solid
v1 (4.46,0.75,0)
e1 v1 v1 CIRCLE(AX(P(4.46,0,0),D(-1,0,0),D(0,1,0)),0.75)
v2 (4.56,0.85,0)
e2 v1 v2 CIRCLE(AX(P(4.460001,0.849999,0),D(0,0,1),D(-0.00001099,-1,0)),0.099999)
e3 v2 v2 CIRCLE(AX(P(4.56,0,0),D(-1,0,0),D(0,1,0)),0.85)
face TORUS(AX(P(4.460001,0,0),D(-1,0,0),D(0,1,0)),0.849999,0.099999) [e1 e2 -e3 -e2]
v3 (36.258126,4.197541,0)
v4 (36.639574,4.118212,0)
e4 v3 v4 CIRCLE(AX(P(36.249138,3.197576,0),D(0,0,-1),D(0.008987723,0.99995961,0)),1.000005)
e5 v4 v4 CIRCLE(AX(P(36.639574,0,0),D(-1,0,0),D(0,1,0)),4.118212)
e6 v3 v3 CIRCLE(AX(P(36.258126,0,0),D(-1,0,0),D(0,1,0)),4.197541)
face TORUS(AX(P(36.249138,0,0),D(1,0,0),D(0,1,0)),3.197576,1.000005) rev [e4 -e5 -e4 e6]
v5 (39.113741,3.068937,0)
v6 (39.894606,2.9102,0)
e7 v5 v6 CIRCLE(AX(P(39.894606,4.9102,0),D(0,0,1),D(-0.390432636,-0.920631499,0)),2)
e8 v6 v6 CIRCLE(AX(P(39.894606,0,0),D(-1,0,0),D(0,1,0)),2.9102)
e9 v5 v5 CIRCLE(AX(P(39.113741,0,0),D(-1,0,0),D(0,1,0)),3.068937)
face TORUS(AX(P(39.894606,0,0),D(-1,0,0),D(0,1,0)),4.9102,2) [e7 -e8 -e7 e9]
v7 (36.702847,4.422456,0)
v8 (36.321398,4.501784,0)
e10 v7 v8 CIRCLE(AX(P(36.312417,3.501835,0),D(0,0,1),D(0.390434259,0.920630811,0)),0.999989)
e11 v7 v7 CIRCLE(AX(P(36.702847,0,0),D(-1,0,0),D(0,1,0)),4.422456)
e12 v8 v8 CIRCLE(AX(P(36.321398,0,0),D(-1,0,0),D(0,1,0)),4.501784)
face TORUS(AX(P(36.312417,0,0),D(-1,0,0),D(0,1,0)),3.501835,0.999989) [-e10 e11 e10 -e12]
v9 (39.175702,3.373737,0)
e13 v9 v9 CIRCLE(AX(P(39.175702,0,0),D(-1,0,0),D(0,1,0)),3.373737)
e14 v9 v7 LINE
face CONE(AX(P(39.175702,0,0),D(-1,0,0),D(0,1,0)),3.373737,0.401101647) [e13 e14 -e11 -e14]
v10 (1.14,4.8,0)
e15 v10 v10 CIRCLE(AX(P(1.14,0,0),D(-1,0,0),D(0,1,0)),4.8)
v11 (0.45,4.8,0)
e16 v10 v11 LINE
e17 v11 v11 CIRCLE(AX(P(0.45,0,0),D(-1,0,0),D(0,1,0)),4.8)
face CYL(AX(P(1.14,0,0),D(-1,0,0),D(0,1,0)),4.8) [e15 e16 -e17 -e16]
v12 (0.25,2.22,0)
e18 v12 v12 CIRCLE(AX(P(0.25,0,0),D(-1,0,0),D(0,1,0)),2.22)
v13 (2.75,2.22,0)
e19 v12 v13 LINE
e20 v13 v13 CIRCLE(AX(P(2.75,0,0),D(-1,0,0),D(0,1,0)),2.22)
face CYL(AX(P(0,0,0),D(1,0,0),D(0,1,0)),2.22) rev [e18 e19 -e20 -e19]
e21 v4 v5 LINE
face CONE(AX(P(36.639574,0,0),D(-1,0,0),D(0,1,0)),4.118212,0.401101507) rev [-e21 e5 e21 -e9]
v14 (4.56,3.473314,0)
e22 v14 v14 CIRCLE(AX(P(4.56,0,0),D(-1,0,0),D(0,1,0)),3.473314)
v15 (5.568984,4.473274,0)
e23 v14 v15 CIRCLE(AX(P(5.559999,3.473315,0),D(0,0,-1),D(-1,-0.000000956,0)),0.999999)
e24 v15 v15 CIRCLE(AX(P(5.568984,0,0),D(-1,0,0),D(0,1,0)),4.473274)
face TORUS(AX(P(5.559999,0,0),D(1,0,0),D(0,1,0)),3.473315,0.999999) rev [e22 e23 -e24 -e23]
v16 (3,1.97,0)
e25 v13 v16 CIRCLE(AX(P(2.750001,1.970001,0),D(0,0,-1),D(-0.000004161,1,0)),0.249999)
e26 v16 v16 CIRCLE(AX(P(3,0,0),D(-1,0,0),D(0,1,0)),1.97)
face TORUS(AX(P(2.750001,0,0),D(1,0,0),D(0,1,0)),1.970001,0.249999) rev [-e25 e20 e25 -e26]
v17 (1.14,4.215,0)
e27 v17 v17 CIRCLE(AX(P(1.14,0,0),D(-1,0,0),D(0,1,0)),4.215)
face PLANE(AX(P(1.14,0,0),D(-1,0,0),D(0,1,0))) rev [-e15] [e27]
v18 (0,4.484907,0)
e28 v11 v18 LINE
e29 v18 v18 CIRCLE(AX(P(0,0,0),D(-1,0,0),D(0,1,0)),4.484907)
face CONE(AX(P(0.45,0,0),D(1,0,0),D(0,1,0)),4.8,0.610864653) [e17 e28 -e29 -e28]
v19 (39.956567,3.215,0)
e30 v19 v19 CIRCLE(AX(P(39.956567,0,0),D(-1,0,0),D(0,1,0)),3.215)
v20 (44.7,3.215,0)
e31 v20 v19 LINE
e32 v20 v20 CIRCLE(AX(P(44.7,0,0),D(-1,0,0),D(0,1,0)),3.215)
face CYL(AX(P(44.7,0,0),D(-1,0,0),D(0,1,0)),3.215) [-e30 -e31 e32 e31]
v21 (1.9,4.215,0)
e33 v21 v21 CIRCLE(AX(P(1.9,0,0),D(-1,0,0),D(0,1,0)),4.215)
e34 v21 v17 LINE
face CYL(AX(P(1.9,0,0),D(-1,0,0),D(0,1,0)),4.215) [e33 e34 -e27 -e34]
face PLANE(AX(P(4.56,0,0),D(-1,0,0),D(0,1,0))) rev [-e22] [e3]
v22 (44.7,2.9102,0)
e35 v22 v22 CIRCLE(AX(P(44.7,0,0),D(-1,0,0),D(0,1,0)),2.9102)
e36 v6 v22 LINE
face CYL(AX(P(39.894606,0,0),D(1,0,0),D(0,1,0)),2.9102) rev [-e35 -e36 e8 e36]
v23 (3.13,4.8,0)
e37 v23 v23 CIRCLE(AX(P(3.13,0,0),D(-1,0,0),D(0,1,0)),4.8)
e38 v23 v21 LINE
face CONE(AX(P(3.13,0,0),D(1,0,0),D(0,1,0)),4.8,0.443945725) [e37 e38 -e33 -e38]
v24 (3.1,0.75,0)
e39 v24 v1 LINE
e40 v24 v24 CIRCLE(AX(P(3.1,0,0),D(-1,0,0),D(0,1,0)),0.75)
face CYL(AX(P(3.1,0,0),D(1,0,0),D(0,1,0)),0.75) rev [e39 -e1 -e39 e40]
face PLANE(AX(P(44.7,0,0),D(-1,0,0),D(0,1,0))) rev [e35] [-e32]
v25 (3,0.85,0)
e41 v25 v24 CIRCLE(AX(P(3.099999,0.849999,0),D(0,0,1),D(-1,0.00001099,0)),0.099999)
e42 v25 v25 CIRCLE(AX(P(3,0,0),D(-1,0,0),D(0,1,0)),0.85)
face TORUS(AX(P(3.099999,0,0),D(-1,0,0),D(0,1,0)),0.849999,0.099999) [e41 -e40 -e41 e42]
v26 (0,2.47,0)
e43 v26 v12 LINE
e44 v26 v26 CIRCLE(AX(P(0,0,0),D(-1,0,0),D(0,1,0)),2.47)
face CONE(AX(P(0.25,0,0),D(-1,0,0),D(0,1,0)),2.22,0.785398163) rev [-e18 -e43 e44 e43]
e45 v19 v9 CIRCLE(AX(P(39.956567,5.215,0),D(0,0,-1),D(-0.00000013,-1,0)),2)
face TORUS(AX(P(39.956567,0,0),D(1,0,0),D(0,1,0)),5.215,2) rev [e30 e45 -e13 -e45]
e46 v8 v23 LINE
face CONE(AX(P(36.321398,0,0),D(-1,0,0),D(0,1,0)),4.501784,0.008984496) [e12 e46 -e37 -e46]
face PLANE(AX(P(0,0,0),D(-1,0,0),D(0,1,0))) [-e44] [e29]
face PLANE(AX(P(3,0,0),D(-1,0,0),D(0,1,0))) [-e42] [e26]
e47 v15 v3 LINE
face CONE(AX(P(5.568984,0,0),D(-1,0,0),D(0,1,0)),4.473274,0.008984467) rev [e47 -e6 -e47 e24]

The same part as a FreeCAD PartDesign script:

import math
import FreeCAD as App
import Part
import Sketcher


def edges_at(feature, points):
    """Names of the edges that pass closest to the given points."""
    edges = feature.Shape.Edges
    near = lambda p: min(range(len(edges)), key=lambda i: edges[i].distToShape(Part.Vertex(*p))[0])
    return sorted({f"Edge{near(p) + 1}" for p in points})

doc = App.newDocument("Part")
body = doc.addObject("PartDesign::Body", "Body")

# Sketch on XY plane
sketch1 = body.newObject("Sketcher::SketchObject", "Sketch")
sketch1.AttachmentSupport = (doc.getObject("XY_Plane"), [""])
sketch1.MapMode = "FlatFace"
sketch1.addGeometry(Part.LineSegment(App.Vector(0, 4.48, 0), App.Vector(0, 2.22, 0)), False)
sketch1.addGeometry(Part.LineSegment(App.Vector(0, 2.22, 0), App.Vector(2.75, 2.22, 0)), False)
sketch1.addGeometry(Part.ArcOfCircle(Part.Circle(App.Vector(2.75, 1.97, 0), App.Vector(0, 0, 1), 0.25), math.radians(0), math.radians(90)), False)
sketch1.addGeometry(Part.LineSegment(App.Vector(3, 1.97, 0), App.Vector(3, 0.85, 0)), False)
sketch1.addGeometry(Part.ArcOfCircle(Part.Circle(App.Vector(3.1, 0.85, 0), App.Vector(0, 0, 1), 0.1), math.radians(180), math.radians(270)), False)
sketch1.addGeometry(Part.LineSegment(App.Vector(3.1, 0.75, 0), App.Vector(4.46, 0.75, 0)), False)
sketch1.addGeometry(Part.ArcOfCircle(Part.Circle(App.Vector(4.46, 0.85, 0), App.Vector(0, 0, 1), 0.1), math.radians(-90), math.radians(0)), False)
sketch1.addGeometry(Part.LineSegment(App.Vector(4.56, 0.85, 0), App.Vector(4.56, 3.47, 0)), False)
sketch1.addGeometry(Part.ArcOfCircle(Part.Circle(App.Vector(5.56, 3.47, 0), App.Vector(0, 0, 1), 1), math.radians(89), math.radians(180)), False)
sketch1.addGeometry(Part.LineSegment(App.Vector(5.57, 4.47, 0), App.Vector(36.26, 4.2, 0)), False)
sketch1.addGeometry(Part.ArcOfCircle(Part.Circle(App.Vector(36.25, 3.2, 0), App.Vector(0, 0, 1), 1), math.radians(67), math.radians(89)), False)
sketch1.addGeometry(Part.LineSegment(App.Vector(36.64, 4.12, 0), App.Vector(39.11, 3.07, 0)), False)
sketch1.addGeometry(Part.ArcOfCircle(Part.Circle(App.Vector(39.89, 4.91, 0), App.Vector(0, 0, 1), 2), math.radians(-113), math.radians(-90)), False)
sketch1.addGeometry(Part.LineSegment(App.Vector(39.89, 2.91, 0), App.Vector(44.7, 2.91, 0)), False)
sketch1.addGeometry(Part.LineSegment(App.Vector(44.7, 2.91, 0), App.Vector(44.7, 3.21, 0)), False)
sketch1.addGeometry(Part.LineSegment(App.Vector(44.7, 3.21, 0), App.Vector(39.96, 3.21, 0)), False)
sketch1.addGeometry(Part.ArcOfCircle(Part.Circle(App.Vector(39.96, 5.21, 0), App.Vector(0, 0, 1), 2), math.radians(-113), math.radians(-90)), False)
sketch1.addGeometry(Part.LineSegment(App.Vector(39.18, 3.37, 0), App.Vector(36.7, 4.42, 0)), False)
sketch1.addGeometry(Part.ArcOfCircle(Part.Circle(App.Vector(36.31, 3.5, 0), App.Vector(0, 0, 1), 1), math.radians(67), math.radians(89)), False)
sketch1.addGeometry(Part.LineSegment(App.Vector(36.32, 4.5, 0), App.Vector(3.13, 4.8, 0)), False)
sketch1.addGeometry(Part.LineSegment(App.Vector(3.13, 4.8, 0), App.Vector(1.9, 4.21, 0)), False)
sketch1.addGeometry(Part.LineSegment(App.Vector(1.9, 4.21, 0), App.Vector(1.14, 4.21, 0)), False)
sketch1.addGeometry(Part.LineSegment(App.Vector(1.14, 4.21, 0), App.Vector(1.14, 4.8, 0)), False)
sketch1.addGeometry(Part.LineSegment(App.Vector(1.14, 4.8, 0), App.Vector(0.45, 4.8, 0)), False)
sketch1.addGeometry(Part.LineSegment(App.Vector(0.45, 4.8, 0), App.Vector(0, 4.48, 0)), False)
sketch1.addConstraint(Sketcher.Constraint("Coincident", 0, 2, 1, 1))
sketch1.addConstraint(Sketcher.Constraint("Coincident", 1, 2, 2, 2))
sketch1.addConstraint(Sketcher.Constraint("Coincident", 2, 1, 3, 1))
sketch1.addConstraint(Sketcher.Constraint("Coincident", 3, 2, 4, 1))
sketch1.addConstraint(Sketcher.Constraint("Coincident", 4, 2, 5, 1))
sketch1.addConstraint(Sketcher.Constraint("Coincident", 5, 2, 6, 1))
sketch1.addConstraint(Sketcher.Constraint("Coincident", 6, 2, 7, 1))
sketch1.addConstraint(Sketcher.Constraint("Tangent", 7, 2, 8, 2))
sketch1.addConstraint(Sketcher.Constraint("Tangent", 8, 1, 9, 1))
sketch1.addConstraint(Sketcher.Constraint("Coincident", 9, 2, 10, 2))
sketch1.addConstraint(Sketcher.Constraint("Tangent", 10, 1, 11, 1))
sketch1.addConstraint(Sketcher.Constraint("Tangent", 11, 2, 12, 1))
sketch1.addConstraint(Sketcher.Constraint("Tangent", 12, 2, 13, 1))
sketch1.addConstraint(Sketcher.Constraint("Coincident", 13, 2, 14, 1))
sketch1.addConstraint(Sketcher.Constraint("Coincident", 14, 2, 15, 1))
sketch1.addConstraint(Sketcher.Constraint("Tangent", 15, 2, 16, 2))
sketch1.addConstraint(Sketcher.Constraint("Tangent", 16, 1, 17, 1))
sketch1.addConstraint(Sketcher.Constraint("Tangent", 17, 2, 18, 1))
sketch1.addConstraint(Sketcher.Constraint("Coincident", 18, 2, 19, 1))
sketch1.addConstraint(Sketcher.Constraint("Coincident", 19, 2, 20, 1))
sketch1.addConstraint(Sketcher.Constraint("Coincident", 20, 2, 21, 1))
sketch1.addConstraint(Sketcher.Constraint("Coincident", 21, 2, 22, 1))
sketch1.addConstraint(Sketcher.Constraint("Coincident", 22, 2, 23, 1))
sketch1.addConstraint(Sketcher.Constraint("Coincident", 23, 2, 24, 1))
sketch1.addConstraint(Sketcher.Constraint("Coincident", 24, 2, 0, 1))
sketch1.addConstraint(Sketcher.Constraint("Vertical", 0))
sketch1.addConstraint(Sketcher.Constraint("Horizontal", 1))
sketch1.addConstraint(Sketcher.Constraint("Vertical", 3))
sketch1.addConstraint(Sketcher.Constraint("Horizontal", 5))
sketch1.addConstraint(Sketcher.Constraint("Vertical", 7))
sketch1.addConstraint(Sketcher.Constraint("Horizontal", 13))
sketch1.addConstraint(Sketcher.Constraint("Vertical", 14))
sketch1.addConstraint(Sketcher.Constraint("Horizontal", 15))
sketch1.addConstraint(Sketcher.Constraint("Horizontal", 21))
sketch1.addConstraint(Sketcher.Constraint("Vertical", 22))
sketch1.addConstraint(Sketcher.Constraint("Horizontal", 23))
sketch1.addConstraint(Sketcher.Constraint("Equal", 4, 6))
sketch1.addConstraint(Sketcher.Constraint("Equal", 12, 16))
sketch1.addConstraint(Sketcher.Constraint("PointOnObject", 0, 2, -2))
sketch1.addConstraint(Sketcher.Constraint("Parallel", 11, 17))
sketch1.addConstraint(Sketcher.Constraint("Parallel", 9, 19))
sketch1.addConstraint(Sketcher.Constraint("Horizontal", 6, 3, 3, 2))
sketch1.addConstraint(Sketcher.Constraint("Horizontal", 3, 2, 6, 2))
sketch1.addConstraint(Sketcher.Constraint("Horizontal", 19, 2, 22, 2))
sketch1.addConstraint(Sketcher.Constraint("Vertical", 2, 3, 1, 2))
sketch1.addConstraint(Sketcher.Constraint("Vertical", 6, 3, 5, 2))
sketch1.addConstraint(Sketcher.Constraint("Radius", 8, 0.999999))
sketch1.addConstraint(Sketcher.Constraint("Radius", 12, 2.0))
sketch1.addConstraint(Sketcher.Constraint("Radius", 4, 0.099999))
sketch1.addConstraint(Sketcher.Constraint("Radius", 2, 0.249999))
sketch1.addConstraint(Sketcher.Constraint("DistanceX", -1, 1, 2, 1, 3.0))
sketch1.addConstraint(Sketcher.Constraint("DistanceX", 5, 1, 5, 2, 1.36))
sketch1.addConstraint(Sketcher.Constraint("DistanceX", 21, 2, 21, 1, 0.76))
sketch1.addConstraint(Sketcher.Constraint("DistanceX", 23, 2, 23, 1, 0.69))
sketch1.addConstraint(Sketcher.Constraint("DistanceY", 3, 2, 3, 1, 1.12))
sketch1.addConstraint(Sketcher.Constraint("DistanceX", -1, 1, 4, 2, 3.1))
sketch1.addConstraint(Sketcher.Constraint("DistanceX", -1, 1, 13, 2, 44.7))
sketch1.addConstraint(Sketcher.Constraint("DistanceY", -1, 1, 19, 2, 4.8))
sketch1.addConstraint(Sketcher.Constraint("DistanceX", -1, 1, 20, 2, 1.9))
sketch1.addConstraint(Sketcher.Constraint("DistanceY", 22, 1, 22, 2, 0.585))
sketch1.addConstraint(Sketcher.Constraint("DistanceY", -1, 1, 2, 3, 1.970001))
sketch1.addConstraint(Sketcher.Constraint("DistanceY", -1, 1, 4, 3, 0.849999))
sketch1.addConstraint(Sketcher.Constraint("DistanceX", -1, 1, 19, 2, 3.13))
sketch1.addConstraint(Sketcher.Constraint("Radius", 18, 0.999989))
sketch1.addConstraint(Sketcher.Constraint("DistanceY", 14, 1, 14, 2, 0.3048))
sketch1.addConstraint(Sketcher.Constraint("DistanceY", -1, 1, 16, 3, 5.215))
sketch1.addConstraint(Sketcher.Constraint("Radius", 10, 1.000005))
sketch1.addConstraint(Sketcher.Constraint("DistanceX", -1, 1, 16, 1, 39.175702))
sketch1.addConstraint(Sketcher.Constraint("DistanceY", 11, 2, 18, 3, 0.432898))
sketch1.addConstraint(Sketcher.Constraint("Distance", 9, 30.690381))
sketch1.addConstraint(Sketcher.Constraint("Distance", 24, 0.549348))
sketch1.addConstraint(Sketcher.Constraint("DistanceX", 13, 1, 13, 2, 4.805394))
sketch1.addConstraint(Sketcher.Constraint("DistanceX", 15, 2, 15, 1, 4.743433))
sketch1.addConstraint(Sketcher.Constraint("DistanceY", 7, 1, 7, 2, 2.623314))
sketch1.addConstraint(Sketcher.Constraint("DistanceX", 9, 2, 18, 2, 0.063272))
revolution = body.newObject("PartDesign::Revolution", "Revolution")
revolution.Profile = sketch1
revolution.ReferenceAxis = (sketch1, ["H_Axis"])
revolution.Angle = 360
doc.recompute()

chamfer = body.newObject("PartDesign::Chamfer", "Chamfer")
chamfer.Base = (revolution, edges_at(revolution, [(0, -2.22, 0)]))
chamfer.Size = 0.25

doc.recompute()
